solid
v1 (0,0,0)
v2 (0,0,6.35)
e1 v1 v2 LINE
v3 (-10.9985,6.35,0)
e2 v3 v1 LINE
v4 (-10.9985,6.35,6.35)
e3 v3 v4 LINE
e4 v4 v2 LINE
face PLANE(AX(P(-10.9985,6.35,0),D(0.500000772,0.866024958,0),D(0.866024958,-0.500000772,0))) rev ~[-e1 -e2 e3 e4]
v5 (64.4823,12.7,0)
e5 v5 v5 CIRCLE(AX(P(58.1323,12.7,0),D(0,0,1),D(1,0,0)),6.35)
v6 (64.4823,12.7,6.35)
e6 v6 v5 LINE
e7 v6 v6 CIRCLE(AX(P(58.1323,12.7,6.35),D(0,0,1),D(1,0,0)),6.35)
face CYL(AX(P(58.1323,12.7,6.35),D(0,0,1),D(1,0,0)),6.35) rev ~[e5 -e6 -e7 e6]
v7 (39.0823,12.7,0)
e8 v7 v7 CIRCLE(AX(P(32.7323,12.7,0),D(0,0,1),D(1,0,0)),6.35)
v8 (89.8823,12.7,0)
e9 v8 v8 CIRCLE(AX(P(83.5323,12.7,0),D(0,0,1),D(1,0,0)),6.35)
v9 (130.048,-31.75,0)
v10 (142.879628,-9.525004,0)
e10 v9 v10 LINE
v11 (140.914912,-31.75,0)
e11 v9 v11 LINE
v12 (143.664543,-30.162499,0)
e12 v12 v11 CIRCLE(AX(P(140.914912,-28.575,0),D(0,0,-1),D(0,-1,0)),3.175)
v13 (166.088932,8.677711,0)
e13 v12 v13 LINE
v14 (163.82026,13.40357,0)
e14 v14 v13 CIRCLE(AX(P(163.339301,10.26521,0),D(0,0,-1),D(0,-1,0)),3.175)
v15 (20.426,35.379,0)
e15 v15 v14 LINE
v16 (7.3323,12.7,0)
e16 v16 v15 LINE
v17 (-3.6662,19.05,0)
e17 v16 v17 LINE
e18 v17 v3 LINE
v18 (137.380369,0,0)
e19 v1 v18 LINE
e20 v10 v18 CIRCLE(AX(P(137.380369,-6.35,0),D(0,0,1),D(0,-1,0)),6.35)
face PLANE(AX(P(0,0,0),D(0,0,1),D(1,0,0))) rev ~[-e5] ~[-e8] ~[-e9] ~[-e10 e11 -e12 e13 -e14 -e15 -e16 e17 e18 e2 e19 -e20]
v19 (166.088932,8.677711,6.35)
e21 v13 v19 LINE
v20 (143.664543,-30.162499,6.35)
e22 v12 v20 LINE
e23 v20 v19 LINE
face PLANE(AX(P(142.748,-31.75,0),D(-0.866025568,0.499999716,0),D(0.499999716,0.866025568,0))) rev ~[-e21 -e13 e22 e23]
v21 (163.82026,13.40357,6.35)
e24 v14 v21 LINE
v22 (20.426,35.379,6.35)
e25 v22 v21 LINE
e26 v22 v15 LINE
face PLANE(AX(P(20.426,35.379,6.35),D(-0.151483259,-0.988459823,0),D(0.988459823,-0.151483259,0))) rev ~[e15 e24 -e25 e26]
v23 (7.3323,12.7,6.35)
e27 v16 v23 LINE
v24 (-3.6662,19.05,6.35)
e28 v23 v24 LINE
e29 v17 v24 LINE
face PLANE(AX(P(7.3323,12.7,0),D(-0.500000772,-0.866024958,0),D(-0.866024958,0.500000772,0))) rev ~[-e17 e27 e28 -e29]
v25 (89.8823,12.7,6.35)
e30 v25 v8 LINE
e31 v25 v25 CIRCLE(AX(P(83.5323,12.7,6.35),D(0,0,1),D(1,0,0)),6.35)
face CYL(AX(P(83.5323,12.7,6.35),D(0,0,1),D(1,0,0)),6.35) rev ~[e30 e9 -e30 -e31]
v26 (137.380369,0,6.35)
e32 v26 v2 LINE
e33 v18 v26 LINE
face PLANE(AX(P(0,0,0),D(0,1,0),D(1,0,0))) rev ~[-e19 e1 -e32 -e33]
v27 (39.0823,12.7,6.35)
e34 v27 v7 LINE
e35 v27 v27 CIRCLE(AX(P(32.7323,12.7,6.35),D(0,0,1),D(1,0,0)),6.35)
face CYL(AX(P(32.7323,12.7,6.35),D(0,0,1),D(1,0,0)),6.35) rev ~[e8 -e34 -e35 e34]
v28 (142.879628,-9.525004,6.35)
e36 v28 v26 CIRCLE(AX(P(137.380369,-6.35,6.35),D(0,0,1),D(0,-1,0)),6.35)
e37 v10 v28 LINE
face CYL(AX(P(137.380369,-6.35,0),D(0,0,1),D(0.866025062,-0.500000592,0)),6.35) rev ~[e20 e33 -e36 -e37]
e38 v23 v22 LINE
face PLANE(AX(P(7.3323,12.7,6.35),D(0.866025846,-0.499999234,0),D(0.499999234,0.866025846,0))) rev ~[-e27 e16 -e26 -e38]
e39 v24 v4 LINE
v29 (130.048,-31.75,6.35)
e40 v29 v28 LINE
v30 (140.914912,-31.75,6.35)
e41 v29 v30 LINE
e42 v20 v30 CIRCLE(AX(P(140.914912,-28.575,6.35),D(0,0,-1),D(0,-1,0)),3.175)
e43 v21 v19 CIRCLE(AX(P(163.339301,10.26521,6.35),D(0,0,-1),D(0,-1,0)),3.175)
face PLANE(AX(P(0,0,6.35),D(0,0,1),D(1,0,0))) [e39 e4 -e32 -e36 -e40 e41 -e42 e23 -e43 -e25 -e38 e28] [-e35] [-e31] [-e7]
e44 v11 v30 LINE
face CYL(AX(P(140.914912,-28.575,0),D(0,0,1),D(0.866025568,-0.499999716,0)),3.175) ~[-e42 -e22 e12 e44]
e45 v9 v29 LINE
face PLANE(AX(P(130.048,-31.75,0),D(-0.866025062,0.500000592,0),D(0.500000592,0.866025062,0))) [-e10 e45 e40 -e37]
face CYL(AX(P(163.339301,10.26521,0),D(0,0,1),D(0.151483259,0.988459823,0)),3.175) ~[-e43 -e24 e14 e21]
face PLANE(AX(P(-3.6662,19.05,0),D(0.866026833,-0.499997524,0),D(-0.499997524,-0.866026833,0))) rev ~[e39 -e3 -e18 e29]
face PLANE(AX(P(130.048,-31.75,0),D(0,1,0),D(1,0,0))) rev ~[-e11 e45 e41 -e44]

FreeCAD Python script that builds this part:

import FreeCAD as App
import Part
import Sketcher
Q = App.Units.Quantity


def edges_at(feature, points):
    """Names of the edges that pass closest to the given points."""
    edges = feature.Shape.Edges
    near = lambda p: min(range(len(edges)), key=lambda i: edges[i].distToShape(Part.Vertex(*p))[0])
    return sorted({f"Edge{near(p) + 1}" for p in points})


def add_polygon(sketch, points):
    """Adds a closed chain of lines whose ends are joined by coincident constraints."""
    first, n = sketch.GeometryCount, len(points)
    for a, b in zip(points, points[1:] + points[:1]):
        sketch.addGeometry(Part.LineSegment(App.Vector(*a, 0), App.Vector(*b, 0)), False)
    for i in range(n):
        sketch.addConstraint(Sketcher.Constraint("Coincident", first + i, 2, first + (i + 1) % n, 1))

doc = App.newDocument("Part")
params = doc.addObject("Spreadsheet::Sheet", "Params")
for row, (alias, value) in enumerate([
    ("sketch1_width", "0.5 in"),
    ("sketch1_length", "0.5 in"),
    ("pad1_length", "0.25 in"),
    ("sketch2_length", "1.031 in"),
    ("pad2_length", "0.25 in"),
    ("fillet_radius", "0.125 in"),
    ("fillet2_radius", "0.125 in"),
    ("sketch3_diameter", "0.5 in"),
    ("pocket1_length", "0.25 in"),
    ("fillet3_radius", "0.25 in"),
], start=1):
    params.set(f"A{row}", alias)
    params.set(f"B{row}", "=" + value)
    params.setAlias(f"B{row}", alias)

body = doc.addObject("PartDesign::Body", "Body")

# Sketch on XY plane
sketch1 = body.newObject("Sketcher::SketchObject", "Sketch")
sketch1.AttachmentSupport = (doc.getObject("XY_Plane"), [""])
sketch1.MapMode = "FlatFace"
add_polygon(sketch1, [(-11, 6), (0, 0), (148, 0), (130, -32), (143, -32), (168, 13), (7, 13), (-4, 19)])  # lines 0-7
sketch1.addConstraint(Sketcher.Constraint("Horizontal", 1))
sketch1.addConstraint(Sketcher.Constraint("Horizontal", 3))
sketch1.addConstraint(Sketcher.Constraint("Horizontal", 5))
sketch1.addConstraint(Sketcher.Constraint("Coincident", 0, 2, -1, 1))
sketch1.addConstraint(Sketcher.Constraint("Perpendicular", 0, 2))
sketch1.addConstraint(Sketcher.Constraint("Parallel", 2, 4))
sketch1.addConstraint(Sketcher.Constraint("Perpendicular", 4, 6))
sketch1.addConstraint(Sketcher.Constraint("Perpendicular", 6, 7))
sketch1.addConstraint(Sketcher.Constraint("Equal", 0, 6))
sketch1.addConstraint(Sketcher.Constraint("DistanceX", 3, 1, 3, 2, Q("0.5 in")))
sketch1.addConstraint(Sketcher.Constraint("Angle", 4, Q("60 deg")))
sketch1.addConstraint(Sketcher.Constraint("Distance", 0, Q("0.5 in")))
sketch1.addConstraint(Sketcher.Constraint("DistanceY", -1, 1, 4, 2, Q("0.5 in")))
sketch1.addConstraint(Sketcher.Constraint("DistanceX", -1, 1, 2, 2, Q("5.12 in")))
sketch1.addConstraint(Sketcher.Constraint("DistanceY", 2, 2, -1, 1, Q("1.25 in")))
sketch1.setExpression("Constraints[17]", "Params.sketch1_width")
sketch1.setExpression("Constraints[19]", "Params.sketch1_length")
pad1 = body.newObject("PartDesign::Pad", "Pad")
pad1.Profile = sketch1
pad1.setExpression("Length", "Params.pad1_length")

# Sketch on XY plane
sketch2 = body.newObject("Sketcher::SketchObject", "Sketch001")
sketch2.AttachmentSupport = (doc.getObject("XY_Plane"), [""])
sketch2.MapMode = "FlatFace"
sketch2.AttachmentOffset = App.Placement(App.Vector(0, 0, 0.25 * 25.4), App.Rotation())
add_polygon(sketch2, [(7, 13), (168, 13), (20, 35)])  # lines 0-2
sketch2.addConstraint(Sketcher.Constraint("Horizontal", 0))
sketch2.addConstraint(Sketcher.Constraint("Distance", 2, Q("1.031 in")))
sketch2.addConstraint(Sketcher.Constraint("Angle", 2, Q("-120 deg")))
sketch2.addConstraint(Sketcher.Constraint("DistanceY", -1, 1, 0, 2, Q("0.5 in")))
sketch2.addConstraint(Sketcher.Constraint("DistanceX", 0, 1, 0, 2, Q("6.3417 in")))
sketch2.addConstraint(Sketcher.Constraint("DistanceX", -1, 1, 0, 2, Q("168.4112 mm")))
sketch2.setExpression("Constraints[4]", "Params.sketch2_length")
pad2 = body.newObject("PartDesign::Pad", "Pad001")
pad2.Profile = sketch2
pad2.setExpression("Length", "Params.pad2_length")
pad2.Reversed = True
doc.recompute()

fillet = body.newObject("PartDesign::Fillet", "Fillet")
fillet.Base = (pad2, edges_at(pad2, [(168.411, 12.7, 3.175)]))
fillet.setExpression("Radius", "Params.fillet_radius")
doc.recompute()

fillet2 = body.newObject("PartDesign::Fillet", "Fillet001")
fillet2.Base = (fillet, edges_at(fillet, [(142.748, -31.75, 3.175)]))
fillet2.setExpression("Radius", "Params.fillet2_radius")

# Sketch on XY plane
sketch3 = body.newObject("Sketcher::SketchObject", "Sketch002")
sketch3.AttachmentSupport = (doc.getObject("XY_Plane"), [""])
sketch3.MapMode = "FlatFace"
sketch3.AttachmentOffset = App.Placement(App.Vector(0, 0, 0.25 * 25.4), App.Rotation())
sketch3.addGeometry(Part.Circle(App.Vector(33, 13, 0), App.Vector(0, 0, 1), 6), False)
sketch3.addGeometry(Part.Circle(App.Vector(58, 13, 0), App.Vector(0, 0, 1), 6), False)
sketch3.addGeometry(Part.Circle(App.Vector(84, 13, 0), App.Vector(0, 0, 1), 6), False)
sketch3.addConstraint(Sketcher.Constraint("Equal", 0, 1))
sketch3.addConstraint(Sketcher.Constraint("Equal", 1, 2))
sketch3.addConstraint(Sketcher.Constraint("Horizontal", 0, 3, 1, 3))
sketch3.addConstraint(Sketcher.Constraint("Horizontal", 1, 3, 2, 3))
sketch3.addConstraint(Sketcher.Constraint("Diameter", 0, Q("0.5 in")))
sketch3.addConstraint(Sketcher.Constraint("DistanceY", -1, 1, 0, 3, Q("0.5 in")))
sketch3.addConstraint(Sketcher.Constraint("DistanceX", 0, 3, 1, 3, Q("1 in")))
sketch3.addConstraint(Sketcher.Constraint("DistanceX", 1, 3, 2, 3, Q("1 in")))
sketch3.addConstraint(Sketcher.Constraint("DistanceX", -1, 1, 0, 3, Q("32.7323 mm")))
sketch3.setExpression("Constraints[4]", "Params.sketch3_diameter")
pocket1 = body.newObject("PartDesign::Pocket", "Pocket")
pocket1.Profile = sketch3
pocket1.setExpression("Length", "Params.pocket1_length")
doc.recompute()

fillet3 = body.newObject("PartDesign::Fillet", "Fillet002")
fillet3.Base = (pocket1, edges_at(pocket1, [(148.379, 0, 3.175)]))
fillet3.setExpression("Radius", "Params.fillet3_radius")

doc.recompute()
